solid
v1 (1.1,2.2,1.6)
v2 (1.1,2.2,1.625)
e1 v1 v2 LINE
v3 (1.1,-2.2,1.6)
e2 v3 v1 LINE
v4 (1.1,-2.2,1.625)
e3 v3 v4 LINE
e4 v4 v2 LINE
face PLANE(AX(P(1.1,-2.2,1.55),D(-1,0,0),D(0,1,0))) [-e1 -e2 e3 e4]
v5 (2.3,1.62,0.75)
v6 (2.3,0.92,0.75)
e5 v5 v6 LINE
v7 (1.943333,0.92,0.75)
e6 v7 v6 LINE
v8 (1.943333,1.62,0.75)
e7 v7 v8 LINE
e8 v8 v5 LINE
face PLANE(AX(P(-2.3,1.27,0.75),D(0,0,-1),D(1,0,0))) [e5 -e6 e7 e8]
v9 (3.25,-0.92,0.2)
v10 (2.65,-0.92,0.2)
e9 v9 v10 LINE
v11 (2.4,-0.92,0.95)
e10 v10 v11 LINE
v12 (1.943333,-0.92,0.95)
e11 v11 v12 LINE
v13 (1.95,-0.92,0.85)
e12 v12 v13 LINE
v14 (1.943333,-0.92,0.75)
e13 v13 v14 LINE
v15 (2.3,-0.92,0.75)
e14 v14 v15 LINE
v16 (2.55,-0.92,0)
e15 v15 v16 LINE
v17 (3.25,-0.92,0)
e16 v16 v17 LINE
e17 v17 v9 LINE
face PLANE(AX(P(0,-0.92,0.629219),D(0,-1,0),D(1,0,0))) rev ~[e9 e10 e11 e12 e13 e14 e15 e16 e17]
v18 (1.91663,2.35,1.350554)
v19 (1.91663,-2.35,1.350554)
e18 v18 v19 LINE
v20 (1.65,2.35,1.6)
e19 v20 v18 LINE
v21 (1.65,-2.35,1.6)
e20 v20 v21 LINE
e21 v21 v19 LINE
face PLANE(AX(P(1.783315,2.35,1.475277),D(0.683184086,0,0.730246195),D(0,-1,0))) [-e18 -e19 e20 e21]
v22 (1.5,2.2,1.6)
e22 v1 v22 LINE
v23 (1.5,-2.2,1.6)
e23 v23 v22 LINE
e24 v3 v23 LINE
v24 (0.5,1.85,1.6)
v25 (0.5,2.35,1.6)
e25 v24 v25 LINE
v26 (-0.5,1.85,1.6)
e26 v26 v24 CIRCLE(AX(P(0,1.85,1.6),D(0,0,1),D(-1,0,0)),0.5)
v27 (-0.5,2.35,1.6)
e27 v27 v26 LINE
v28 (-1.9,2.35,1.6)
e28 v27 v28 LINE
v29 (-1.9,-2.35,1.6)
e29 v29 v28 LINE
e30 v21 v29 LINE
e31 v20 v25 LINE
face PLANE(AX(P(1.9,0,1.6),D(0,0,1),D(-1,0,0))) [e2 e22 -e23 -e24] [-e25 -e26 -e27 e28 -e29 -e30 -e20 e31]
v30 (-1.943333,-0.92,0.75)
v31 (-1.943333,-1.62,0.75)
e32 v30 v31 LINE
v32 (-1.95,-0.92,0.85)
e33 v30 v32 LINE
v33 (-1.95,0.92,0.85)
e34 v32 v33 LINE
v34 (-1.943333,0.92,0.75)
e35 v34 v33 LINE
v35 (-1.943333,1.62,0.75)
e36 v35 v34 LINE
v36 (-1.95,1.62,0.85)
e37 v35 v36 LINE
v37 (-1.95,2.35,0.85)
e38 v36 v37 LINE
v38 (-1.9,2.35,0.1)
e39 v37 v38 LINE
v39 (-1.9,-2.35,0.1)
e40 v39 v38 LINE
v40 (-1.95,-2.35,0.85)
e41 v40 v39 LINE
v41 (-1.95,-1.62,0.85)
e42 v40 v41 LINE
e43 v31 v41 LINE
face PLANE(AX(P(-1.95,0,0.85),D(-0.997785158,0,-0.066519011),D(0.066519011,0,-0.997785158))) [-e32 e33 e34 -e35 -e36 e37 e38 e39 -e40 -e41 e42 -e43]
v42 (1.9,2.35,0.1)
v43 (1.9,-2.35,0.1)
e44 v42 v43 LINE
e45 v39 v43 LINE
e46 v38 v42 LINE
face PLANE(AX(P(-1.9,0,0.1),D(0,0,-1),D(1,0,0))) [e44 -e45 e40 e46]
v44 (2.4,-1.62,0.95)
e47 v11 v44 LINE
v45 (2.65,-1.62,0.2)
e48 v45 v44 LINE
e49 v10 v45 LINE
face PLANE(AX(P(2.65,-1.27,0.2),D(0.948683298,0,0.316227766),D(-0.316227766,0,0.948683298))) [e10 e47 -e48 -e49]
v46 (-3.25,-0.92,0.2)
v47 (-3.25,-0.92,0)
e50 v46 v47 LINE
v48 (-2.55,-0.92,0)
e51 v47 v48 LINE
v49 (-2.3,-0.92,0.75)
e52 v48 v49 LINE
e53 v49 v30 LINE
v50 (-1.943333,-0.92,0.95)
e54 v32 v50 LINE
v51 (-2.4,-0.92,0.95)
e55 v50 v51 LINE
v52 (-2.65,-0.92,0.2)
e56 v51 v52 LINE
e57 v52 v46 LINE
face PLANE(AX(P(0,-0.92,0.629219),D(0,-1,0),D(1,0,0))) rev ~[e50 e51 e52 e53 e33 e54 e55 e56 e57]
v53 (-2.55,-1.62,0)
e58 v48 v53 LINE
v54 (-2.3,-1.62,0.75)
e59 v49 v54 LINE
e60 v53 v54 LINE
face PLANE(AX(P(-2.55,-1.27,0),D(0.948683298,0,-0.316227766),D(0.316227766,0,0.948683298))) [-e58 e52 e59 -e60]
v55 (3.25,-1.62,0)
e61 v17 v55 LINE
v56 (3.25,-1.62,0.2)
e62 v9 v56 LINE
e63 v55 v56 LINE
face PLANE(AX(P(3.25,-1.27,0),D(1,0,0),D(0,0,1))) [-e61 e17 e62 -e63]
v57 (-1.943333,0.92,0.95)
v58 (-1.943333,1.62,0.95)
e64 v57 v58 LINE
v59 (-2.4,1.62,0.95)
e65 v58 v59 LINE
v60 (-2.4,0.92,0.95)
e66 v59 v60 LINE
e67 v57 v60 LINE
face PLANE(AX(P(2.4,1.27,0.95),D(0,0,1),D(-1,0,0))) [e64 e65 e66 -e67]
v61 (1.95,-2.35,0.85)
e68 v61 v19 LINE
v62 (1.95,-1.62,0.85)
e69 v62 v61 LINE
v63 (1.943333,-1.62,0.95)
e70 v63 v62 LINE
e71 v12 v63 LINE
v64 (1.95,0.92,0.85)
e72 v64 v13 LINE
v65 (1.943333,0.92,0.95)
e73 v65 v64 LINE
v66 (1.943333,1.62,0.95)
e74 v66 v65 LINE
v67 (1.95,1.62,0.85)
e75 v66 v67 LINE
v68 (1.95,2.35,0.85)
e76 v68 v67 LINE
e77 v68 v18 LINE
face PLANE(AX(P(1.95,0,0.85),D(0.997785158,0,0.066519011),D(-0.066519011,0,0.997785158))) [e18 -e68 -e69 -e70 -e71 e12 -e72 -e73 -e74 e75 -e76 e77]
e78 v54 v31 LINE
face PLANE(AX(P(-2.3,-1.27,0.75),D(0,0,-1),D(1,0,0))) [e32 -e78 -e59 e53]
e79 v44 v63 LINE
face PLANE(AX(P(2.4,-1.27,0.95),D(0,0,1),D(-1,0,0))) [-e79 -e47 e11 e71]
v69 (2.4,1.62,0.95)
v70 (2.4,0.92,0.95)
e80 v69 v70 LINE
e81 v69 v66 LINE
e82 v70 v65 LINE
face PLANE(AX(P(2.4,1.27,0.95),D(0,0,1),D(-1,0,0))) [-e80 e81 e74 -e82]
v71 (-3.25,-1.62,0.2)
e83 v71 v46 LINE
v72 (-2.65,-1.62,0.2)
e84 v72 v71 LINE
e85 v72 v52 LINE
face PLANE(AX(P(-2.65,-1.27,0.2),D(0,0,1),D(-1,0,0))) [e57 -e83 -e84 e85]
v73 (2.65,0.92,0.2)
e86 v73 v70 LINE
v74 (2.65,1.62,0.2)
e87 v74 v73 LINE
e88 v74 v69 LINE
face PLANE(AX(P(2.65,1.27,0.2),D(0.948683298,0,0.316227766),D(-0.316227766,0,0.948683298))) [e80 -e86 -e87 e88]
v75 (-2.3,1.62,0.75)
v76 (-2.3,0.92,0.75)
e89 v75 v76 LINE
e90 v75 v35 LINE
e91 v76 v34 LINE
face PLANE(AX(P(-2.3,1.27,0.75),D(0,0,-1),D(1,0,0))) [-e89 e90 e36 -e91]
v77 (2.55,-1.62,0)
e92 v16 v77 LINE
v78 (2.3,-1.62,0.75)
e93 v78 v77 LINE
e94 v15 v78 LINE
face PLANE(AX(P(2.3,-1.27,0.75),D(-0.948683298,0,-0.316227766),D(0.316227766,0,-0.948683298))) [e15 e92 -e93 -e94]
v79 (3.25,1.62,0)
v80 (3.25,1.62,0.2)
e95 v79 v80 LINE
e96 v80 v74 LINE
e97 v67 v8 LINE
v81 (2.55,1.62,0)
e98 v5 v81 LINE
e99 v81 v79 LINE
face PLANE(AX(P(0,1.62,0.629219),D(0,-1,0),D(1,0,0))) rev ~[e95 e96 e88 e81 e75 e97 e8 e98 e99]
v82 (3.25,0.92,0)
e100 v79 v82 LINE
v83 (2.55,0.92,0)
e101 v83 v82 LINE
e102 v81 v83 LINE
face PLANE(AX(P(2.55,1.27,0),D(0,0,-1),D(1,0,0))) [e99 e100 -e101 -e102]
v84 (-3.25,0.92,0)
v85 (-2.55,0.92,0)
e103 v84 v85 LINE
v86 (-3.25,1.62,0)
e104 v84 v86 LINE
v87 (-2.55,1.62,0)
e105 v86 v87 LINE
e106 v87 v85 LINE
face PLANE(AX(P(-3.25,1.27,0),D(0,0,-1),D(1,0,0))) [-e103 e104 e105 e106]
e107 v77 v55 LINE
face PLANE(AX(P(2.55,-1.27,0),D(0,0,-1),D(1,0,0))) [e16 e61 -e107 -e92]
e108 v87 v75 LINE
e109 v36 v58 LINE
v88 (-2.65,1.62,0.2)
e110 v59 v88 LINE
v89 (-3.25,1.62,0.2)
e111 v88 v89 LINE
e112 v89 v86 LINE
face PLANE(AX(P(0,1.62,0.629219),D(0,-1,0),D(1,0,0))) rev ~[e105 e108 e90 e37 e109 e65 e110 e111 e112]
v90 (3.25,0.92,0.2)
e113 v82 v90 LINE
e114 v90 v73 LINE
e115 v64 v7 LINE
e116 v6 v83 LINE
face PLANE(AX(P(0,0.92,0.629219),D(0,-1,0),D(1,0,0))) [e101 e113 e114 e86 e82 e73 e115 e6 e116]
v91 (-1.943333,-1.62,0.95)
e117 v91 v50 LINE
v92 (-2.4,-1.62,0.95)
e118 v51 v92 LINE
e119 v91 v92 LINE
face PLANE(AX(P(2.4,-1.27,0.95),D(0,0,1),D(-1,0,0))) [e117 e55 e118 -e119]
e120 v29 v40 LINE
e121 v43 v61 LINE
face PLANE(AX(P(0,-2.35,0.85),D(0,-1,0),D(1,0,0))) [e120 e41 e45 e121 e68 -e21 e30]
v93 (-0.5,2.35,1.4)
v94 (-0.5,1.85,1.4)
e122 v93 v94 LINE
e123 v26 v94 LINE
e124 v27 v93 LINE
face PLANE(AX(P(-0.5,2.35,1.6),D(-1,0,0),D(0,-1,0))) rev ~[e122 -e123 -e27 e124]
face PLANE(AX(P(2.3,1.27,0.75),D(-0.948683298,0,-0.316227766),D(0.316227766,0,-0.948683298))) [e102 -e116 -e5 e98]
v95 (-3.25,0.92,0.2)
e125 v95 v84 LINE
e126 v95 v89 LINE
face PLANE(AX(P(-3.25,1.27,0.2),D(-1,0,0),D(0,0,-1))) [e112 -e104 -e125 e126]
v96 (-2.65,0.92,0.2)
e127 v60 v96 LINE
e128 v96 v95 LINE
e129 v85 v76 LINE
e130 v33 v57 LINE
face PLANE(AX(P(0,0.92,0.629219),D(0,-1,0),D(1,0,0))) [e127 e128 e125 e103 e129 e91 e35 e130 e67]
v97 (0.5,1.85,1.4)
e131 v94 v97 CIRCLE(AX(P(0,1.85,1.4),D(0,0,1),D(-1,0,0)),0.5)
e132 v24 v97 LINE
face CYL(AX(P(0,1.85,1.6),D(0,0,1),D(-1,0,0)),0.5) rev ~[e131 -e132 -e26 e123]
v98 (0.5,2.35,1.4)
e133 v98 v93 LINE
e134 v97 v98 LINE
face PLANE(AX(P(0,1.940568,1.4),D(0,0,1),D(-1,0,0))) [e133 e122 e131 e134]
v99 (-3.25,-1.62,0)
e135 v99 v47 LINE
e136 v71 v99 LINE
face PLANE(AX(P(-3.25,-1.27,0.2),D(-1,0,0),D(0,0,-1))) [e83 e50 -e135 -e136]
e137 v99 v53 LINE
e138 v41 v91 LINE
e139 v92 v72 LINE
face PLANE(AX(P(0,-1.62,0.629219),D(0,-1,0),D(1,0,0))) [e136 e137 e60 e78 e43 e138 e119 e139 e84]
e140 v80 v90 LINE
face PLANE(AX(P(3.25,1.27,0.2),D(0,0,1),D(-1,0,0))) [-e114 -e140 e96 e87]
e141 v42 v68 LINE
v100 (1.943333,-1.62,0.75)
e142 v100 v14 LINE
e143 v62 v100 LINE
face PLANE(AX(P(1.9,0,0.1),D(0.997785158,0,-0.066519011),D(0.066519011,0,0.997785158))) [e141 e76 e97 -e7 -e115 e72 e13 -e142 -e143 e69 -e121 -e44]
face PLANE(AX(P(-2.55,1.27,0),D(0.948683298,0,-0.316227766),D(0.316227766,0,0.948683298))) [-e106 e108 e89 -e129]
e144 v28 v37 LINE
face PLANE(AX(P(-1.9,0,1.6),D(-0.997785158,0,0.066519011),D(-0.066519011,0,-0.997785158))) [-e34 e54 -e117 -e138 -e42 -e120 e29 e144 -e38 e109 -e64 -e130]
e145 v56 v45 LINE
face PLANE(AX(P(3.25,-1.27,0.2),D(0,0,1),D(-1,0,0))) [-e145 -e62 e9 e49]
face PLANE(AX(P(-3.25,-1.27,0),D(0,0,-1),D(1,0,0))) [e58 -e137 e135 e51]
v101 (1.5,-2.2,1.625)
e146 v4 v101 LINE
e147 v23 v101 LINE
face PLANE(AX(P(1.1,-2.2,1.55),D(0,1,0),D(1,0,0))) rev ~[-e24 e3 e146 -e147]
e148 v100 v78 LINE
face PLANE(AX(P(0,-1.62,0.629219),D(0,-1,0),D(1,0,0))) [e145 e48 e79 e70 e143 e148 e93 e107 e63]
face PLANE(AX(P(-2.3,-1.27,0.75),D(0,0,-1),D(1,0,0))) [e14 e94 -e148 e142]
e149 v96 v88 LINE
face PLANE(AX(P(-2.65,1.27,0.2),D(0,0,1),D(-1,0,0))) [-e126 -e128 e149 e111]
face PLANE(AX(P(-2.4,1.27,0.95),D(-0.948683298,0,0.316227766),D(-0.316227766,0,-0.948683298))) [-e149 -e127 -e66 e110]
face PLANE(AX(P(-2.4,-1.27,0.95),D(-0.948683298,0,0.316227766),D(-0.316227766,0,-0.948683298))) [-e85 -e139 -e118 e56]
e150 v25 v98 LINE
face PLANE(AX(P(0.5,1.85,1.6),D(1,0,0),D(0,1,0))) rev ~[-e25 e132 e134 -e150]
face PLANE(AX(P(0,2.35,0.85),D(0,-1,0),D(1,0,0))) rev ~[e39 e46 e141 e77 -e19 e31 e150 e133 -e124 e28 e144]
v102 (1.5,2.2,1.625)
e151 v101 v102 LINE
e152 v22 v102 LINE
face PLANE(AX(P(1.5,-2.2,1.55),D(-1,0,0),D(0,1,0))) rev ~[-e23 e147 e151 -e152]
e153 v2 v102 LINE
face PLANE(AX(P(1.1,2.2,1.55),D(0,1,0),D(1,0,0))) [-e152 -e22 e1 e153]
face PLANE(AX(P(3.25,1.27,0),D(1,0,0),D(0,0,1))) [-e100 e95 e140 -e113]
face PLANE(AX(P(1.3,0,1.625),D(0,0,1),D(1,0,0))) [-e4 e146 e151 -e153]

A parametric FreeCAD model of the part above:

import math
import FreeCAD as App
import Part
import Sketcher
from FreeCAD import Vector
Q = App.Units.Quantity


def edges_at(feature, points):
    """Names of the edges that pass closest to the given points."""
    edges = feature.Shape.Edges
    near = lambda p: min(range(len(edges)), key=lambda i: edges[i].distToShape(Part.Vertex(*p))[0])
    return sorted({f"Edge{near(p) + 1}" for p in points})


def add_polygon(sketch, points):
    """Adds a closed chain of lines whose ends are joined by coincident constraints."""
    first, n = sketch.GeometryCount, len(points)
    for a, b in zip(points, points[1:] + points[:1]):
        sketch.addGeometry(Part.LineSegment(App.Vector(*a, 0), App.Vector(*b, 0)), False)
    for i in range(n):
        sketch.addConstraint(Sketcher.Constraint("Coincident", first + i, 2, first + (i + 1) % n, 1))

doc = App.newDocument("Part")
body = doc.addObject("PartDesign::Body", "Body")

# Sketch on XZ plane
sketch1 = body.newObject("Sketcher::SketchObject", "Sketch")
sketch1.AttachmentSupport = (doc.getObject("XZ_Plane"), [""])
sketch1.MapMode = "FlatFace"
add_polygon(sketch1, [(-1.9, 0.1), (1.9, 0.1), (1.95, 0.85), (1.9, 1.6), (-1.9, 1.6), (-1.95, 0.85)])  # lines 0-5
sketch1.addConstraint([
    Sketcher.Constraint("Horizontal", 0),
    Sketcher.Constraint("Horizontal", 3),
    Sketcher.Constraint("Symmetric", 1, 2, 4, 2, -2),
    Sketcher.Constraint("Parallel", 1, 4),
    Sketcher.Constraint("Parallel", 2, 5),
    Sketcher.Constraint("Vertical", 0, 2, 2, 2),
    Sketcher.Constraint("Vertical", 3, 2, 5, 2),
    Sketcher.Constraint("DistanceX", 0, 1, 0, 2, Q("3.8 mm")),
    Sketcher.Constraint("DistanceY", -1, 1, 0, 2, Q("0.1 mm")),
    Sketcher.Constraint("DistanceY", -1, 1, 2, 2, Q("1.6 mm")),
    Sketcher.Constraint("DistanceX", 4, 2, 1, 2, Q("3.9 mm")),
])
pad1 = body.newObject("PartDesign::Pad", "Pad")
pad1.Profile = sketch1
pad1.Length = 4.7
pad1.Midplane = True
doc.recompute()

chamfer = body.newObject("PartDesign::Chamfer", "Chamfer")
chamfer.Base = (pad1, edges_at(pad1, [(1.9, 0, 1.6)]))
chamfer.Size = 0.25

# Sketch on XY plane
sketch2 = body.newObject("Sketcher::SketchObject", "Sketch001")
sketch2.AttachmentSupport = (doc.getObject("XY_Plane"), [""])
sketch2.MapMode = "FlatFace"
sketch2.AttachmentOffset = App.Placement(Vector(0, 0, 1.6), App.Rotation())
sketch2.addGeometry([
    Part.ArcOfCircle(Part.Circle(Vector(0, 1.9, 0), Vector(0, 0, 1), 0.5), math.radians(180), math.radians(360)),
    Part.LineSegment(Vector(0.5, 1.9, 0), Vector(0.5, 2.4, 0)),
    Part.LineSegment(Vector(0.5, 2.4, 0), Vector(-0.5, 2.4, 0)),
    Part.LineSegment(Vector(-0.5, 2.4, 0), Vector(-0.5, 1.9, 0)),
], False)
sketch2.addConstraint([
    Sketcher.Constraint("Tangent", 0, 2, 1, 1),
    Sketcher.Constraint("Coincident", 1, 2, 2, 1),
    Sketcher.Constraint("Coincident", 2, 2, 3, 1),
    Sketcher.Constraint("Tangent", 3, 2, 0, 1),
    Sketcher.Constraint("Vertical", 1),
    Sketcher.Constraint("Horizontal", 2),
    Sketcher.Constraint("Vertical", 3),
    Sketcher.Constraint("PointOnObject", 0, 3, -2),
    Sketcher.Constraint("Radius", 0, Q("0.5 mm")),
    Sketcher.Constraint("DistanceY", 1, 1, 1, 2, Q("0.5 mm")),
    Sketcher.Constraint("DistanceY", -1, 1, 0, 3, Q("1.85 mm")),
])
pocket1 = body.newObject("PartDesign::Pocket", "Pocket")
pocket1.Profile = sketch2
pocket1.Length = 0.2
body2 = doc.addObject("PartDesign::Body", "Body001")

# Sketch on XZ plane
sketch3 = body2.newObject("Sketcher::SketchObject", "Sketch002")
sketch3.AttachmentSupport = (doc.getObject("XZ_Plane001"), [""])
sketch3.MapMode = "FlatFace"
sketch3.AttachmentOffset = App.Placement(Vector(0, 0, -1.27), App.Rotation())
add_polygon(sketch3, [(-3.25, 0), (-2.55, 0), (-2.3, 0.75), (2.3, 0.75), (2.55, 0), (3.25, 0), (3.25, 0.2), (2.65, 0.2), (2.4, 0.95), (-2.4, 0.95), (-2.65, 0.2), (-3.25, 0.2)])  # lines 0-11
sketch3.addConstraint([
    Sketcher.Constraint("Horizontal", 0),
    Sketcher.Constraint("Horizontal", 2),
    Sketcher.Constraint("Horizontal", 4),
    Sketcher.Constraint("Vertical", 5),
    Sketcher.Constraint("Horizontal", 6),
    Sketcher.Constraint("Horizontal", 8),
    Sketcher.Constraint("Horizontal", 10),
    Sketcher.Constraint("Vertical", 11),
    Sketcher.Constraint("Symmetric", 0, 2, 3, 2, -1, 1),
    Sketcher.Constraint("Symmetric", 6, 2, 9, 2, -2),
    Sketcher.Constraint("Symmetric", 4, 2, 11, 2, -2),
    Sketcher.Constraint("Parallel", 3, 7),
    Sketcher.Constraint("Parallel", 1, 9),
    Sketcher.Constraint("Equal", 1, 3),
    Sketcher.Constraint("Equal", 3, 7),
    Sketcher.Constraint("DistanceX", 0, 1, 0, 2, Q("0.7 mm")),
    Sketcher.Constraint("DistanceX", 2, 1, 2, 2, Q("4.6 mm")),
    Sketcher.Constraint("DistanceX", 6, 2, 6, 1, Q("0.6 mm")),
    Sketcher.Constraint("DistanceY", 5, 1, 5, 2, Q("0.2 mm")),
    Sketcher.Constraint("DistanceX", 0, 2, 3, 2, Q("5.1 mm")),
    Sketcher.Constraint("DistanceY", -1, 1, 1, 2, Q("0.75 mm")),
])
pad2 = body2.newObject("PartDesign::Pad", "Pad001")
pad2.Profile = sketch3
pad2.Length = 0.7
pad2.Midplane = True
body3 = doc.addObject("PartDesign::Body", "Body002")

# Sketch on XZ plane
sketch4 = body3.newObject("Sketcher::SketchObject", "Sketch003")
sketch4.AttachmentSupport = (doc.getObject("XZ_Plane002"), [""])
sketch4.MapMode = "FlatFace"
sketch4.AttachmentOffset = App.Placement(Vector(0, 0, 1.27), App.Rotation())
add_polygon(sketch4, [(-3.25, 0), (-2.55, 0), (-2.3, 0.75), (2.3, 0.75), (2.55, 0), (3.25, 0), (3.25, 0.2), (2.65, 0.2), (2.4, 0.95), (-2.4, 0.95), (-2.65, 0.2), (-3.25, 0.2)])  # lines 0-11
sketch4.addConstraint([
    Sketcher.Constraint("Horizontal", 0),
    Sketcher.Constraint("Horizontal", 2),
    Sketcher.Constraint("Horizontal", 4),
    Sketcher.Constraint("Vertical", 5),
    Sketcher.Constraint("Horizontal", 6),
    Sketcher.Constraint("Horizontal", 8),
    Sketcher.Constraint("Horizontal", 10),
    Sketcher.Constraint("Vertical", 11),
    Sketcher.Constraint("Symmetric", 0, 2, 3, 2, -1, 1),
    Sketcher.Constraint("Symmetric", 6, 2, 9, 2, -2),
    Sketcher.Constraint("Symmetric", 4, 2, 11, 2, -2),
    Sketcher.Constraint("Parallel", 3, 7),
    Sketcher.Constraint("Parallel", 1, 9),
    Sketcher.Constraint("Equal", 1, 3),
    Sketcher.Constraint("Equal", 3, 7),
    Sketcher.Constraint("DistanceX", 0, 1, 0, 2, Q("0.7 mm")),
    Sketcher.Constraint("DistanceX", 2, 1, 2, 2, Q("4.6 mm")),
    Sketcher.Constraint("DistanceX", 6, 2, 6, 1, Q("0.6 mm")),
    Sketcher.Constraint("DistanceY", 5, 1, 5, 2, Q("0.2 mm")),
    Sketcher.Constraint("DistanceX", 0, 2, 3, 2, Q("5.1 mm")),
    Sketcher.Constraint("DistanceY", -1, 1, 1, 2, Q("0.75 mm")),
])
pad3 = body3.newObject("PartDesign::Pad", "Pad002")
pad3.Profile = sketch4
pad3.Length = 0.7
pad3.Midplane = True
body4 = doc.addObject("PartDesign::Body", "Body003")

# Sketch on XY plane
sketch5 = body4.newObject("Sketcher::SketchObject", "Sketch004")
sketch5.AttachmentSupport = (doc.getObject("XY_Plane003"), [""])
sketch5.MapMode = "FlatFace"
sketch5.AttachmentOffset = App.Placement(Vector(0, 0, 1.55), App.Rotation())
add_polygon(sketch5, [(1.1, 2.2), (1.1, -2.2), (1.5, -2.2), (1.5, 2.2)])  # lines 0-3
sketch5.addConstraint([
    Sketcher.Constraint("Vertical", 0),
    Sketcher.Constraint("Horizontal", 1),
    Sketcher.Constraint("Vertical", 2),
    Sketcher.Constraint("Horizontal", 3),
    Sketcher.Constraint("DistanceX", 1, 1, 1, 2, Q("0.4 mm")),
    Sketcher.Constraint("DistanceY", 0, 2, 0, 1, Q("4.4 mm")),
    Sketcher.Constraint("DistanceX", -1, 1, 0, 2, Q("1.1 mm")),
    Sketcher.Constraint("DistanceY", 0, 2, -1, 1, Q("2.2 mm")),
])
pad4 = body4.newObject("PartDesign::Pad", "Pad003")
pad4.Profile = sketch5
pad4.Length = 0.075
doc.recompute()

boolean = body4.newObject("PartDesign::Boolean", "Boolean")
boolean.Type = "Fuse"
boolean.addObjects([body])
doc.recompute()

boolean2 = body4.newObject("PartDesign::Boolean", "Boolean001")
boolean2.Type = "Fuse"
boolean2.addObjects([body2])
doc.recompute()

boolean3 = body4.newObject("PartDesign::Boolean", "Boolean002")
boolean3.Type = "Fuse"
boolean3.addObjects([body3])

doc.recompute()
